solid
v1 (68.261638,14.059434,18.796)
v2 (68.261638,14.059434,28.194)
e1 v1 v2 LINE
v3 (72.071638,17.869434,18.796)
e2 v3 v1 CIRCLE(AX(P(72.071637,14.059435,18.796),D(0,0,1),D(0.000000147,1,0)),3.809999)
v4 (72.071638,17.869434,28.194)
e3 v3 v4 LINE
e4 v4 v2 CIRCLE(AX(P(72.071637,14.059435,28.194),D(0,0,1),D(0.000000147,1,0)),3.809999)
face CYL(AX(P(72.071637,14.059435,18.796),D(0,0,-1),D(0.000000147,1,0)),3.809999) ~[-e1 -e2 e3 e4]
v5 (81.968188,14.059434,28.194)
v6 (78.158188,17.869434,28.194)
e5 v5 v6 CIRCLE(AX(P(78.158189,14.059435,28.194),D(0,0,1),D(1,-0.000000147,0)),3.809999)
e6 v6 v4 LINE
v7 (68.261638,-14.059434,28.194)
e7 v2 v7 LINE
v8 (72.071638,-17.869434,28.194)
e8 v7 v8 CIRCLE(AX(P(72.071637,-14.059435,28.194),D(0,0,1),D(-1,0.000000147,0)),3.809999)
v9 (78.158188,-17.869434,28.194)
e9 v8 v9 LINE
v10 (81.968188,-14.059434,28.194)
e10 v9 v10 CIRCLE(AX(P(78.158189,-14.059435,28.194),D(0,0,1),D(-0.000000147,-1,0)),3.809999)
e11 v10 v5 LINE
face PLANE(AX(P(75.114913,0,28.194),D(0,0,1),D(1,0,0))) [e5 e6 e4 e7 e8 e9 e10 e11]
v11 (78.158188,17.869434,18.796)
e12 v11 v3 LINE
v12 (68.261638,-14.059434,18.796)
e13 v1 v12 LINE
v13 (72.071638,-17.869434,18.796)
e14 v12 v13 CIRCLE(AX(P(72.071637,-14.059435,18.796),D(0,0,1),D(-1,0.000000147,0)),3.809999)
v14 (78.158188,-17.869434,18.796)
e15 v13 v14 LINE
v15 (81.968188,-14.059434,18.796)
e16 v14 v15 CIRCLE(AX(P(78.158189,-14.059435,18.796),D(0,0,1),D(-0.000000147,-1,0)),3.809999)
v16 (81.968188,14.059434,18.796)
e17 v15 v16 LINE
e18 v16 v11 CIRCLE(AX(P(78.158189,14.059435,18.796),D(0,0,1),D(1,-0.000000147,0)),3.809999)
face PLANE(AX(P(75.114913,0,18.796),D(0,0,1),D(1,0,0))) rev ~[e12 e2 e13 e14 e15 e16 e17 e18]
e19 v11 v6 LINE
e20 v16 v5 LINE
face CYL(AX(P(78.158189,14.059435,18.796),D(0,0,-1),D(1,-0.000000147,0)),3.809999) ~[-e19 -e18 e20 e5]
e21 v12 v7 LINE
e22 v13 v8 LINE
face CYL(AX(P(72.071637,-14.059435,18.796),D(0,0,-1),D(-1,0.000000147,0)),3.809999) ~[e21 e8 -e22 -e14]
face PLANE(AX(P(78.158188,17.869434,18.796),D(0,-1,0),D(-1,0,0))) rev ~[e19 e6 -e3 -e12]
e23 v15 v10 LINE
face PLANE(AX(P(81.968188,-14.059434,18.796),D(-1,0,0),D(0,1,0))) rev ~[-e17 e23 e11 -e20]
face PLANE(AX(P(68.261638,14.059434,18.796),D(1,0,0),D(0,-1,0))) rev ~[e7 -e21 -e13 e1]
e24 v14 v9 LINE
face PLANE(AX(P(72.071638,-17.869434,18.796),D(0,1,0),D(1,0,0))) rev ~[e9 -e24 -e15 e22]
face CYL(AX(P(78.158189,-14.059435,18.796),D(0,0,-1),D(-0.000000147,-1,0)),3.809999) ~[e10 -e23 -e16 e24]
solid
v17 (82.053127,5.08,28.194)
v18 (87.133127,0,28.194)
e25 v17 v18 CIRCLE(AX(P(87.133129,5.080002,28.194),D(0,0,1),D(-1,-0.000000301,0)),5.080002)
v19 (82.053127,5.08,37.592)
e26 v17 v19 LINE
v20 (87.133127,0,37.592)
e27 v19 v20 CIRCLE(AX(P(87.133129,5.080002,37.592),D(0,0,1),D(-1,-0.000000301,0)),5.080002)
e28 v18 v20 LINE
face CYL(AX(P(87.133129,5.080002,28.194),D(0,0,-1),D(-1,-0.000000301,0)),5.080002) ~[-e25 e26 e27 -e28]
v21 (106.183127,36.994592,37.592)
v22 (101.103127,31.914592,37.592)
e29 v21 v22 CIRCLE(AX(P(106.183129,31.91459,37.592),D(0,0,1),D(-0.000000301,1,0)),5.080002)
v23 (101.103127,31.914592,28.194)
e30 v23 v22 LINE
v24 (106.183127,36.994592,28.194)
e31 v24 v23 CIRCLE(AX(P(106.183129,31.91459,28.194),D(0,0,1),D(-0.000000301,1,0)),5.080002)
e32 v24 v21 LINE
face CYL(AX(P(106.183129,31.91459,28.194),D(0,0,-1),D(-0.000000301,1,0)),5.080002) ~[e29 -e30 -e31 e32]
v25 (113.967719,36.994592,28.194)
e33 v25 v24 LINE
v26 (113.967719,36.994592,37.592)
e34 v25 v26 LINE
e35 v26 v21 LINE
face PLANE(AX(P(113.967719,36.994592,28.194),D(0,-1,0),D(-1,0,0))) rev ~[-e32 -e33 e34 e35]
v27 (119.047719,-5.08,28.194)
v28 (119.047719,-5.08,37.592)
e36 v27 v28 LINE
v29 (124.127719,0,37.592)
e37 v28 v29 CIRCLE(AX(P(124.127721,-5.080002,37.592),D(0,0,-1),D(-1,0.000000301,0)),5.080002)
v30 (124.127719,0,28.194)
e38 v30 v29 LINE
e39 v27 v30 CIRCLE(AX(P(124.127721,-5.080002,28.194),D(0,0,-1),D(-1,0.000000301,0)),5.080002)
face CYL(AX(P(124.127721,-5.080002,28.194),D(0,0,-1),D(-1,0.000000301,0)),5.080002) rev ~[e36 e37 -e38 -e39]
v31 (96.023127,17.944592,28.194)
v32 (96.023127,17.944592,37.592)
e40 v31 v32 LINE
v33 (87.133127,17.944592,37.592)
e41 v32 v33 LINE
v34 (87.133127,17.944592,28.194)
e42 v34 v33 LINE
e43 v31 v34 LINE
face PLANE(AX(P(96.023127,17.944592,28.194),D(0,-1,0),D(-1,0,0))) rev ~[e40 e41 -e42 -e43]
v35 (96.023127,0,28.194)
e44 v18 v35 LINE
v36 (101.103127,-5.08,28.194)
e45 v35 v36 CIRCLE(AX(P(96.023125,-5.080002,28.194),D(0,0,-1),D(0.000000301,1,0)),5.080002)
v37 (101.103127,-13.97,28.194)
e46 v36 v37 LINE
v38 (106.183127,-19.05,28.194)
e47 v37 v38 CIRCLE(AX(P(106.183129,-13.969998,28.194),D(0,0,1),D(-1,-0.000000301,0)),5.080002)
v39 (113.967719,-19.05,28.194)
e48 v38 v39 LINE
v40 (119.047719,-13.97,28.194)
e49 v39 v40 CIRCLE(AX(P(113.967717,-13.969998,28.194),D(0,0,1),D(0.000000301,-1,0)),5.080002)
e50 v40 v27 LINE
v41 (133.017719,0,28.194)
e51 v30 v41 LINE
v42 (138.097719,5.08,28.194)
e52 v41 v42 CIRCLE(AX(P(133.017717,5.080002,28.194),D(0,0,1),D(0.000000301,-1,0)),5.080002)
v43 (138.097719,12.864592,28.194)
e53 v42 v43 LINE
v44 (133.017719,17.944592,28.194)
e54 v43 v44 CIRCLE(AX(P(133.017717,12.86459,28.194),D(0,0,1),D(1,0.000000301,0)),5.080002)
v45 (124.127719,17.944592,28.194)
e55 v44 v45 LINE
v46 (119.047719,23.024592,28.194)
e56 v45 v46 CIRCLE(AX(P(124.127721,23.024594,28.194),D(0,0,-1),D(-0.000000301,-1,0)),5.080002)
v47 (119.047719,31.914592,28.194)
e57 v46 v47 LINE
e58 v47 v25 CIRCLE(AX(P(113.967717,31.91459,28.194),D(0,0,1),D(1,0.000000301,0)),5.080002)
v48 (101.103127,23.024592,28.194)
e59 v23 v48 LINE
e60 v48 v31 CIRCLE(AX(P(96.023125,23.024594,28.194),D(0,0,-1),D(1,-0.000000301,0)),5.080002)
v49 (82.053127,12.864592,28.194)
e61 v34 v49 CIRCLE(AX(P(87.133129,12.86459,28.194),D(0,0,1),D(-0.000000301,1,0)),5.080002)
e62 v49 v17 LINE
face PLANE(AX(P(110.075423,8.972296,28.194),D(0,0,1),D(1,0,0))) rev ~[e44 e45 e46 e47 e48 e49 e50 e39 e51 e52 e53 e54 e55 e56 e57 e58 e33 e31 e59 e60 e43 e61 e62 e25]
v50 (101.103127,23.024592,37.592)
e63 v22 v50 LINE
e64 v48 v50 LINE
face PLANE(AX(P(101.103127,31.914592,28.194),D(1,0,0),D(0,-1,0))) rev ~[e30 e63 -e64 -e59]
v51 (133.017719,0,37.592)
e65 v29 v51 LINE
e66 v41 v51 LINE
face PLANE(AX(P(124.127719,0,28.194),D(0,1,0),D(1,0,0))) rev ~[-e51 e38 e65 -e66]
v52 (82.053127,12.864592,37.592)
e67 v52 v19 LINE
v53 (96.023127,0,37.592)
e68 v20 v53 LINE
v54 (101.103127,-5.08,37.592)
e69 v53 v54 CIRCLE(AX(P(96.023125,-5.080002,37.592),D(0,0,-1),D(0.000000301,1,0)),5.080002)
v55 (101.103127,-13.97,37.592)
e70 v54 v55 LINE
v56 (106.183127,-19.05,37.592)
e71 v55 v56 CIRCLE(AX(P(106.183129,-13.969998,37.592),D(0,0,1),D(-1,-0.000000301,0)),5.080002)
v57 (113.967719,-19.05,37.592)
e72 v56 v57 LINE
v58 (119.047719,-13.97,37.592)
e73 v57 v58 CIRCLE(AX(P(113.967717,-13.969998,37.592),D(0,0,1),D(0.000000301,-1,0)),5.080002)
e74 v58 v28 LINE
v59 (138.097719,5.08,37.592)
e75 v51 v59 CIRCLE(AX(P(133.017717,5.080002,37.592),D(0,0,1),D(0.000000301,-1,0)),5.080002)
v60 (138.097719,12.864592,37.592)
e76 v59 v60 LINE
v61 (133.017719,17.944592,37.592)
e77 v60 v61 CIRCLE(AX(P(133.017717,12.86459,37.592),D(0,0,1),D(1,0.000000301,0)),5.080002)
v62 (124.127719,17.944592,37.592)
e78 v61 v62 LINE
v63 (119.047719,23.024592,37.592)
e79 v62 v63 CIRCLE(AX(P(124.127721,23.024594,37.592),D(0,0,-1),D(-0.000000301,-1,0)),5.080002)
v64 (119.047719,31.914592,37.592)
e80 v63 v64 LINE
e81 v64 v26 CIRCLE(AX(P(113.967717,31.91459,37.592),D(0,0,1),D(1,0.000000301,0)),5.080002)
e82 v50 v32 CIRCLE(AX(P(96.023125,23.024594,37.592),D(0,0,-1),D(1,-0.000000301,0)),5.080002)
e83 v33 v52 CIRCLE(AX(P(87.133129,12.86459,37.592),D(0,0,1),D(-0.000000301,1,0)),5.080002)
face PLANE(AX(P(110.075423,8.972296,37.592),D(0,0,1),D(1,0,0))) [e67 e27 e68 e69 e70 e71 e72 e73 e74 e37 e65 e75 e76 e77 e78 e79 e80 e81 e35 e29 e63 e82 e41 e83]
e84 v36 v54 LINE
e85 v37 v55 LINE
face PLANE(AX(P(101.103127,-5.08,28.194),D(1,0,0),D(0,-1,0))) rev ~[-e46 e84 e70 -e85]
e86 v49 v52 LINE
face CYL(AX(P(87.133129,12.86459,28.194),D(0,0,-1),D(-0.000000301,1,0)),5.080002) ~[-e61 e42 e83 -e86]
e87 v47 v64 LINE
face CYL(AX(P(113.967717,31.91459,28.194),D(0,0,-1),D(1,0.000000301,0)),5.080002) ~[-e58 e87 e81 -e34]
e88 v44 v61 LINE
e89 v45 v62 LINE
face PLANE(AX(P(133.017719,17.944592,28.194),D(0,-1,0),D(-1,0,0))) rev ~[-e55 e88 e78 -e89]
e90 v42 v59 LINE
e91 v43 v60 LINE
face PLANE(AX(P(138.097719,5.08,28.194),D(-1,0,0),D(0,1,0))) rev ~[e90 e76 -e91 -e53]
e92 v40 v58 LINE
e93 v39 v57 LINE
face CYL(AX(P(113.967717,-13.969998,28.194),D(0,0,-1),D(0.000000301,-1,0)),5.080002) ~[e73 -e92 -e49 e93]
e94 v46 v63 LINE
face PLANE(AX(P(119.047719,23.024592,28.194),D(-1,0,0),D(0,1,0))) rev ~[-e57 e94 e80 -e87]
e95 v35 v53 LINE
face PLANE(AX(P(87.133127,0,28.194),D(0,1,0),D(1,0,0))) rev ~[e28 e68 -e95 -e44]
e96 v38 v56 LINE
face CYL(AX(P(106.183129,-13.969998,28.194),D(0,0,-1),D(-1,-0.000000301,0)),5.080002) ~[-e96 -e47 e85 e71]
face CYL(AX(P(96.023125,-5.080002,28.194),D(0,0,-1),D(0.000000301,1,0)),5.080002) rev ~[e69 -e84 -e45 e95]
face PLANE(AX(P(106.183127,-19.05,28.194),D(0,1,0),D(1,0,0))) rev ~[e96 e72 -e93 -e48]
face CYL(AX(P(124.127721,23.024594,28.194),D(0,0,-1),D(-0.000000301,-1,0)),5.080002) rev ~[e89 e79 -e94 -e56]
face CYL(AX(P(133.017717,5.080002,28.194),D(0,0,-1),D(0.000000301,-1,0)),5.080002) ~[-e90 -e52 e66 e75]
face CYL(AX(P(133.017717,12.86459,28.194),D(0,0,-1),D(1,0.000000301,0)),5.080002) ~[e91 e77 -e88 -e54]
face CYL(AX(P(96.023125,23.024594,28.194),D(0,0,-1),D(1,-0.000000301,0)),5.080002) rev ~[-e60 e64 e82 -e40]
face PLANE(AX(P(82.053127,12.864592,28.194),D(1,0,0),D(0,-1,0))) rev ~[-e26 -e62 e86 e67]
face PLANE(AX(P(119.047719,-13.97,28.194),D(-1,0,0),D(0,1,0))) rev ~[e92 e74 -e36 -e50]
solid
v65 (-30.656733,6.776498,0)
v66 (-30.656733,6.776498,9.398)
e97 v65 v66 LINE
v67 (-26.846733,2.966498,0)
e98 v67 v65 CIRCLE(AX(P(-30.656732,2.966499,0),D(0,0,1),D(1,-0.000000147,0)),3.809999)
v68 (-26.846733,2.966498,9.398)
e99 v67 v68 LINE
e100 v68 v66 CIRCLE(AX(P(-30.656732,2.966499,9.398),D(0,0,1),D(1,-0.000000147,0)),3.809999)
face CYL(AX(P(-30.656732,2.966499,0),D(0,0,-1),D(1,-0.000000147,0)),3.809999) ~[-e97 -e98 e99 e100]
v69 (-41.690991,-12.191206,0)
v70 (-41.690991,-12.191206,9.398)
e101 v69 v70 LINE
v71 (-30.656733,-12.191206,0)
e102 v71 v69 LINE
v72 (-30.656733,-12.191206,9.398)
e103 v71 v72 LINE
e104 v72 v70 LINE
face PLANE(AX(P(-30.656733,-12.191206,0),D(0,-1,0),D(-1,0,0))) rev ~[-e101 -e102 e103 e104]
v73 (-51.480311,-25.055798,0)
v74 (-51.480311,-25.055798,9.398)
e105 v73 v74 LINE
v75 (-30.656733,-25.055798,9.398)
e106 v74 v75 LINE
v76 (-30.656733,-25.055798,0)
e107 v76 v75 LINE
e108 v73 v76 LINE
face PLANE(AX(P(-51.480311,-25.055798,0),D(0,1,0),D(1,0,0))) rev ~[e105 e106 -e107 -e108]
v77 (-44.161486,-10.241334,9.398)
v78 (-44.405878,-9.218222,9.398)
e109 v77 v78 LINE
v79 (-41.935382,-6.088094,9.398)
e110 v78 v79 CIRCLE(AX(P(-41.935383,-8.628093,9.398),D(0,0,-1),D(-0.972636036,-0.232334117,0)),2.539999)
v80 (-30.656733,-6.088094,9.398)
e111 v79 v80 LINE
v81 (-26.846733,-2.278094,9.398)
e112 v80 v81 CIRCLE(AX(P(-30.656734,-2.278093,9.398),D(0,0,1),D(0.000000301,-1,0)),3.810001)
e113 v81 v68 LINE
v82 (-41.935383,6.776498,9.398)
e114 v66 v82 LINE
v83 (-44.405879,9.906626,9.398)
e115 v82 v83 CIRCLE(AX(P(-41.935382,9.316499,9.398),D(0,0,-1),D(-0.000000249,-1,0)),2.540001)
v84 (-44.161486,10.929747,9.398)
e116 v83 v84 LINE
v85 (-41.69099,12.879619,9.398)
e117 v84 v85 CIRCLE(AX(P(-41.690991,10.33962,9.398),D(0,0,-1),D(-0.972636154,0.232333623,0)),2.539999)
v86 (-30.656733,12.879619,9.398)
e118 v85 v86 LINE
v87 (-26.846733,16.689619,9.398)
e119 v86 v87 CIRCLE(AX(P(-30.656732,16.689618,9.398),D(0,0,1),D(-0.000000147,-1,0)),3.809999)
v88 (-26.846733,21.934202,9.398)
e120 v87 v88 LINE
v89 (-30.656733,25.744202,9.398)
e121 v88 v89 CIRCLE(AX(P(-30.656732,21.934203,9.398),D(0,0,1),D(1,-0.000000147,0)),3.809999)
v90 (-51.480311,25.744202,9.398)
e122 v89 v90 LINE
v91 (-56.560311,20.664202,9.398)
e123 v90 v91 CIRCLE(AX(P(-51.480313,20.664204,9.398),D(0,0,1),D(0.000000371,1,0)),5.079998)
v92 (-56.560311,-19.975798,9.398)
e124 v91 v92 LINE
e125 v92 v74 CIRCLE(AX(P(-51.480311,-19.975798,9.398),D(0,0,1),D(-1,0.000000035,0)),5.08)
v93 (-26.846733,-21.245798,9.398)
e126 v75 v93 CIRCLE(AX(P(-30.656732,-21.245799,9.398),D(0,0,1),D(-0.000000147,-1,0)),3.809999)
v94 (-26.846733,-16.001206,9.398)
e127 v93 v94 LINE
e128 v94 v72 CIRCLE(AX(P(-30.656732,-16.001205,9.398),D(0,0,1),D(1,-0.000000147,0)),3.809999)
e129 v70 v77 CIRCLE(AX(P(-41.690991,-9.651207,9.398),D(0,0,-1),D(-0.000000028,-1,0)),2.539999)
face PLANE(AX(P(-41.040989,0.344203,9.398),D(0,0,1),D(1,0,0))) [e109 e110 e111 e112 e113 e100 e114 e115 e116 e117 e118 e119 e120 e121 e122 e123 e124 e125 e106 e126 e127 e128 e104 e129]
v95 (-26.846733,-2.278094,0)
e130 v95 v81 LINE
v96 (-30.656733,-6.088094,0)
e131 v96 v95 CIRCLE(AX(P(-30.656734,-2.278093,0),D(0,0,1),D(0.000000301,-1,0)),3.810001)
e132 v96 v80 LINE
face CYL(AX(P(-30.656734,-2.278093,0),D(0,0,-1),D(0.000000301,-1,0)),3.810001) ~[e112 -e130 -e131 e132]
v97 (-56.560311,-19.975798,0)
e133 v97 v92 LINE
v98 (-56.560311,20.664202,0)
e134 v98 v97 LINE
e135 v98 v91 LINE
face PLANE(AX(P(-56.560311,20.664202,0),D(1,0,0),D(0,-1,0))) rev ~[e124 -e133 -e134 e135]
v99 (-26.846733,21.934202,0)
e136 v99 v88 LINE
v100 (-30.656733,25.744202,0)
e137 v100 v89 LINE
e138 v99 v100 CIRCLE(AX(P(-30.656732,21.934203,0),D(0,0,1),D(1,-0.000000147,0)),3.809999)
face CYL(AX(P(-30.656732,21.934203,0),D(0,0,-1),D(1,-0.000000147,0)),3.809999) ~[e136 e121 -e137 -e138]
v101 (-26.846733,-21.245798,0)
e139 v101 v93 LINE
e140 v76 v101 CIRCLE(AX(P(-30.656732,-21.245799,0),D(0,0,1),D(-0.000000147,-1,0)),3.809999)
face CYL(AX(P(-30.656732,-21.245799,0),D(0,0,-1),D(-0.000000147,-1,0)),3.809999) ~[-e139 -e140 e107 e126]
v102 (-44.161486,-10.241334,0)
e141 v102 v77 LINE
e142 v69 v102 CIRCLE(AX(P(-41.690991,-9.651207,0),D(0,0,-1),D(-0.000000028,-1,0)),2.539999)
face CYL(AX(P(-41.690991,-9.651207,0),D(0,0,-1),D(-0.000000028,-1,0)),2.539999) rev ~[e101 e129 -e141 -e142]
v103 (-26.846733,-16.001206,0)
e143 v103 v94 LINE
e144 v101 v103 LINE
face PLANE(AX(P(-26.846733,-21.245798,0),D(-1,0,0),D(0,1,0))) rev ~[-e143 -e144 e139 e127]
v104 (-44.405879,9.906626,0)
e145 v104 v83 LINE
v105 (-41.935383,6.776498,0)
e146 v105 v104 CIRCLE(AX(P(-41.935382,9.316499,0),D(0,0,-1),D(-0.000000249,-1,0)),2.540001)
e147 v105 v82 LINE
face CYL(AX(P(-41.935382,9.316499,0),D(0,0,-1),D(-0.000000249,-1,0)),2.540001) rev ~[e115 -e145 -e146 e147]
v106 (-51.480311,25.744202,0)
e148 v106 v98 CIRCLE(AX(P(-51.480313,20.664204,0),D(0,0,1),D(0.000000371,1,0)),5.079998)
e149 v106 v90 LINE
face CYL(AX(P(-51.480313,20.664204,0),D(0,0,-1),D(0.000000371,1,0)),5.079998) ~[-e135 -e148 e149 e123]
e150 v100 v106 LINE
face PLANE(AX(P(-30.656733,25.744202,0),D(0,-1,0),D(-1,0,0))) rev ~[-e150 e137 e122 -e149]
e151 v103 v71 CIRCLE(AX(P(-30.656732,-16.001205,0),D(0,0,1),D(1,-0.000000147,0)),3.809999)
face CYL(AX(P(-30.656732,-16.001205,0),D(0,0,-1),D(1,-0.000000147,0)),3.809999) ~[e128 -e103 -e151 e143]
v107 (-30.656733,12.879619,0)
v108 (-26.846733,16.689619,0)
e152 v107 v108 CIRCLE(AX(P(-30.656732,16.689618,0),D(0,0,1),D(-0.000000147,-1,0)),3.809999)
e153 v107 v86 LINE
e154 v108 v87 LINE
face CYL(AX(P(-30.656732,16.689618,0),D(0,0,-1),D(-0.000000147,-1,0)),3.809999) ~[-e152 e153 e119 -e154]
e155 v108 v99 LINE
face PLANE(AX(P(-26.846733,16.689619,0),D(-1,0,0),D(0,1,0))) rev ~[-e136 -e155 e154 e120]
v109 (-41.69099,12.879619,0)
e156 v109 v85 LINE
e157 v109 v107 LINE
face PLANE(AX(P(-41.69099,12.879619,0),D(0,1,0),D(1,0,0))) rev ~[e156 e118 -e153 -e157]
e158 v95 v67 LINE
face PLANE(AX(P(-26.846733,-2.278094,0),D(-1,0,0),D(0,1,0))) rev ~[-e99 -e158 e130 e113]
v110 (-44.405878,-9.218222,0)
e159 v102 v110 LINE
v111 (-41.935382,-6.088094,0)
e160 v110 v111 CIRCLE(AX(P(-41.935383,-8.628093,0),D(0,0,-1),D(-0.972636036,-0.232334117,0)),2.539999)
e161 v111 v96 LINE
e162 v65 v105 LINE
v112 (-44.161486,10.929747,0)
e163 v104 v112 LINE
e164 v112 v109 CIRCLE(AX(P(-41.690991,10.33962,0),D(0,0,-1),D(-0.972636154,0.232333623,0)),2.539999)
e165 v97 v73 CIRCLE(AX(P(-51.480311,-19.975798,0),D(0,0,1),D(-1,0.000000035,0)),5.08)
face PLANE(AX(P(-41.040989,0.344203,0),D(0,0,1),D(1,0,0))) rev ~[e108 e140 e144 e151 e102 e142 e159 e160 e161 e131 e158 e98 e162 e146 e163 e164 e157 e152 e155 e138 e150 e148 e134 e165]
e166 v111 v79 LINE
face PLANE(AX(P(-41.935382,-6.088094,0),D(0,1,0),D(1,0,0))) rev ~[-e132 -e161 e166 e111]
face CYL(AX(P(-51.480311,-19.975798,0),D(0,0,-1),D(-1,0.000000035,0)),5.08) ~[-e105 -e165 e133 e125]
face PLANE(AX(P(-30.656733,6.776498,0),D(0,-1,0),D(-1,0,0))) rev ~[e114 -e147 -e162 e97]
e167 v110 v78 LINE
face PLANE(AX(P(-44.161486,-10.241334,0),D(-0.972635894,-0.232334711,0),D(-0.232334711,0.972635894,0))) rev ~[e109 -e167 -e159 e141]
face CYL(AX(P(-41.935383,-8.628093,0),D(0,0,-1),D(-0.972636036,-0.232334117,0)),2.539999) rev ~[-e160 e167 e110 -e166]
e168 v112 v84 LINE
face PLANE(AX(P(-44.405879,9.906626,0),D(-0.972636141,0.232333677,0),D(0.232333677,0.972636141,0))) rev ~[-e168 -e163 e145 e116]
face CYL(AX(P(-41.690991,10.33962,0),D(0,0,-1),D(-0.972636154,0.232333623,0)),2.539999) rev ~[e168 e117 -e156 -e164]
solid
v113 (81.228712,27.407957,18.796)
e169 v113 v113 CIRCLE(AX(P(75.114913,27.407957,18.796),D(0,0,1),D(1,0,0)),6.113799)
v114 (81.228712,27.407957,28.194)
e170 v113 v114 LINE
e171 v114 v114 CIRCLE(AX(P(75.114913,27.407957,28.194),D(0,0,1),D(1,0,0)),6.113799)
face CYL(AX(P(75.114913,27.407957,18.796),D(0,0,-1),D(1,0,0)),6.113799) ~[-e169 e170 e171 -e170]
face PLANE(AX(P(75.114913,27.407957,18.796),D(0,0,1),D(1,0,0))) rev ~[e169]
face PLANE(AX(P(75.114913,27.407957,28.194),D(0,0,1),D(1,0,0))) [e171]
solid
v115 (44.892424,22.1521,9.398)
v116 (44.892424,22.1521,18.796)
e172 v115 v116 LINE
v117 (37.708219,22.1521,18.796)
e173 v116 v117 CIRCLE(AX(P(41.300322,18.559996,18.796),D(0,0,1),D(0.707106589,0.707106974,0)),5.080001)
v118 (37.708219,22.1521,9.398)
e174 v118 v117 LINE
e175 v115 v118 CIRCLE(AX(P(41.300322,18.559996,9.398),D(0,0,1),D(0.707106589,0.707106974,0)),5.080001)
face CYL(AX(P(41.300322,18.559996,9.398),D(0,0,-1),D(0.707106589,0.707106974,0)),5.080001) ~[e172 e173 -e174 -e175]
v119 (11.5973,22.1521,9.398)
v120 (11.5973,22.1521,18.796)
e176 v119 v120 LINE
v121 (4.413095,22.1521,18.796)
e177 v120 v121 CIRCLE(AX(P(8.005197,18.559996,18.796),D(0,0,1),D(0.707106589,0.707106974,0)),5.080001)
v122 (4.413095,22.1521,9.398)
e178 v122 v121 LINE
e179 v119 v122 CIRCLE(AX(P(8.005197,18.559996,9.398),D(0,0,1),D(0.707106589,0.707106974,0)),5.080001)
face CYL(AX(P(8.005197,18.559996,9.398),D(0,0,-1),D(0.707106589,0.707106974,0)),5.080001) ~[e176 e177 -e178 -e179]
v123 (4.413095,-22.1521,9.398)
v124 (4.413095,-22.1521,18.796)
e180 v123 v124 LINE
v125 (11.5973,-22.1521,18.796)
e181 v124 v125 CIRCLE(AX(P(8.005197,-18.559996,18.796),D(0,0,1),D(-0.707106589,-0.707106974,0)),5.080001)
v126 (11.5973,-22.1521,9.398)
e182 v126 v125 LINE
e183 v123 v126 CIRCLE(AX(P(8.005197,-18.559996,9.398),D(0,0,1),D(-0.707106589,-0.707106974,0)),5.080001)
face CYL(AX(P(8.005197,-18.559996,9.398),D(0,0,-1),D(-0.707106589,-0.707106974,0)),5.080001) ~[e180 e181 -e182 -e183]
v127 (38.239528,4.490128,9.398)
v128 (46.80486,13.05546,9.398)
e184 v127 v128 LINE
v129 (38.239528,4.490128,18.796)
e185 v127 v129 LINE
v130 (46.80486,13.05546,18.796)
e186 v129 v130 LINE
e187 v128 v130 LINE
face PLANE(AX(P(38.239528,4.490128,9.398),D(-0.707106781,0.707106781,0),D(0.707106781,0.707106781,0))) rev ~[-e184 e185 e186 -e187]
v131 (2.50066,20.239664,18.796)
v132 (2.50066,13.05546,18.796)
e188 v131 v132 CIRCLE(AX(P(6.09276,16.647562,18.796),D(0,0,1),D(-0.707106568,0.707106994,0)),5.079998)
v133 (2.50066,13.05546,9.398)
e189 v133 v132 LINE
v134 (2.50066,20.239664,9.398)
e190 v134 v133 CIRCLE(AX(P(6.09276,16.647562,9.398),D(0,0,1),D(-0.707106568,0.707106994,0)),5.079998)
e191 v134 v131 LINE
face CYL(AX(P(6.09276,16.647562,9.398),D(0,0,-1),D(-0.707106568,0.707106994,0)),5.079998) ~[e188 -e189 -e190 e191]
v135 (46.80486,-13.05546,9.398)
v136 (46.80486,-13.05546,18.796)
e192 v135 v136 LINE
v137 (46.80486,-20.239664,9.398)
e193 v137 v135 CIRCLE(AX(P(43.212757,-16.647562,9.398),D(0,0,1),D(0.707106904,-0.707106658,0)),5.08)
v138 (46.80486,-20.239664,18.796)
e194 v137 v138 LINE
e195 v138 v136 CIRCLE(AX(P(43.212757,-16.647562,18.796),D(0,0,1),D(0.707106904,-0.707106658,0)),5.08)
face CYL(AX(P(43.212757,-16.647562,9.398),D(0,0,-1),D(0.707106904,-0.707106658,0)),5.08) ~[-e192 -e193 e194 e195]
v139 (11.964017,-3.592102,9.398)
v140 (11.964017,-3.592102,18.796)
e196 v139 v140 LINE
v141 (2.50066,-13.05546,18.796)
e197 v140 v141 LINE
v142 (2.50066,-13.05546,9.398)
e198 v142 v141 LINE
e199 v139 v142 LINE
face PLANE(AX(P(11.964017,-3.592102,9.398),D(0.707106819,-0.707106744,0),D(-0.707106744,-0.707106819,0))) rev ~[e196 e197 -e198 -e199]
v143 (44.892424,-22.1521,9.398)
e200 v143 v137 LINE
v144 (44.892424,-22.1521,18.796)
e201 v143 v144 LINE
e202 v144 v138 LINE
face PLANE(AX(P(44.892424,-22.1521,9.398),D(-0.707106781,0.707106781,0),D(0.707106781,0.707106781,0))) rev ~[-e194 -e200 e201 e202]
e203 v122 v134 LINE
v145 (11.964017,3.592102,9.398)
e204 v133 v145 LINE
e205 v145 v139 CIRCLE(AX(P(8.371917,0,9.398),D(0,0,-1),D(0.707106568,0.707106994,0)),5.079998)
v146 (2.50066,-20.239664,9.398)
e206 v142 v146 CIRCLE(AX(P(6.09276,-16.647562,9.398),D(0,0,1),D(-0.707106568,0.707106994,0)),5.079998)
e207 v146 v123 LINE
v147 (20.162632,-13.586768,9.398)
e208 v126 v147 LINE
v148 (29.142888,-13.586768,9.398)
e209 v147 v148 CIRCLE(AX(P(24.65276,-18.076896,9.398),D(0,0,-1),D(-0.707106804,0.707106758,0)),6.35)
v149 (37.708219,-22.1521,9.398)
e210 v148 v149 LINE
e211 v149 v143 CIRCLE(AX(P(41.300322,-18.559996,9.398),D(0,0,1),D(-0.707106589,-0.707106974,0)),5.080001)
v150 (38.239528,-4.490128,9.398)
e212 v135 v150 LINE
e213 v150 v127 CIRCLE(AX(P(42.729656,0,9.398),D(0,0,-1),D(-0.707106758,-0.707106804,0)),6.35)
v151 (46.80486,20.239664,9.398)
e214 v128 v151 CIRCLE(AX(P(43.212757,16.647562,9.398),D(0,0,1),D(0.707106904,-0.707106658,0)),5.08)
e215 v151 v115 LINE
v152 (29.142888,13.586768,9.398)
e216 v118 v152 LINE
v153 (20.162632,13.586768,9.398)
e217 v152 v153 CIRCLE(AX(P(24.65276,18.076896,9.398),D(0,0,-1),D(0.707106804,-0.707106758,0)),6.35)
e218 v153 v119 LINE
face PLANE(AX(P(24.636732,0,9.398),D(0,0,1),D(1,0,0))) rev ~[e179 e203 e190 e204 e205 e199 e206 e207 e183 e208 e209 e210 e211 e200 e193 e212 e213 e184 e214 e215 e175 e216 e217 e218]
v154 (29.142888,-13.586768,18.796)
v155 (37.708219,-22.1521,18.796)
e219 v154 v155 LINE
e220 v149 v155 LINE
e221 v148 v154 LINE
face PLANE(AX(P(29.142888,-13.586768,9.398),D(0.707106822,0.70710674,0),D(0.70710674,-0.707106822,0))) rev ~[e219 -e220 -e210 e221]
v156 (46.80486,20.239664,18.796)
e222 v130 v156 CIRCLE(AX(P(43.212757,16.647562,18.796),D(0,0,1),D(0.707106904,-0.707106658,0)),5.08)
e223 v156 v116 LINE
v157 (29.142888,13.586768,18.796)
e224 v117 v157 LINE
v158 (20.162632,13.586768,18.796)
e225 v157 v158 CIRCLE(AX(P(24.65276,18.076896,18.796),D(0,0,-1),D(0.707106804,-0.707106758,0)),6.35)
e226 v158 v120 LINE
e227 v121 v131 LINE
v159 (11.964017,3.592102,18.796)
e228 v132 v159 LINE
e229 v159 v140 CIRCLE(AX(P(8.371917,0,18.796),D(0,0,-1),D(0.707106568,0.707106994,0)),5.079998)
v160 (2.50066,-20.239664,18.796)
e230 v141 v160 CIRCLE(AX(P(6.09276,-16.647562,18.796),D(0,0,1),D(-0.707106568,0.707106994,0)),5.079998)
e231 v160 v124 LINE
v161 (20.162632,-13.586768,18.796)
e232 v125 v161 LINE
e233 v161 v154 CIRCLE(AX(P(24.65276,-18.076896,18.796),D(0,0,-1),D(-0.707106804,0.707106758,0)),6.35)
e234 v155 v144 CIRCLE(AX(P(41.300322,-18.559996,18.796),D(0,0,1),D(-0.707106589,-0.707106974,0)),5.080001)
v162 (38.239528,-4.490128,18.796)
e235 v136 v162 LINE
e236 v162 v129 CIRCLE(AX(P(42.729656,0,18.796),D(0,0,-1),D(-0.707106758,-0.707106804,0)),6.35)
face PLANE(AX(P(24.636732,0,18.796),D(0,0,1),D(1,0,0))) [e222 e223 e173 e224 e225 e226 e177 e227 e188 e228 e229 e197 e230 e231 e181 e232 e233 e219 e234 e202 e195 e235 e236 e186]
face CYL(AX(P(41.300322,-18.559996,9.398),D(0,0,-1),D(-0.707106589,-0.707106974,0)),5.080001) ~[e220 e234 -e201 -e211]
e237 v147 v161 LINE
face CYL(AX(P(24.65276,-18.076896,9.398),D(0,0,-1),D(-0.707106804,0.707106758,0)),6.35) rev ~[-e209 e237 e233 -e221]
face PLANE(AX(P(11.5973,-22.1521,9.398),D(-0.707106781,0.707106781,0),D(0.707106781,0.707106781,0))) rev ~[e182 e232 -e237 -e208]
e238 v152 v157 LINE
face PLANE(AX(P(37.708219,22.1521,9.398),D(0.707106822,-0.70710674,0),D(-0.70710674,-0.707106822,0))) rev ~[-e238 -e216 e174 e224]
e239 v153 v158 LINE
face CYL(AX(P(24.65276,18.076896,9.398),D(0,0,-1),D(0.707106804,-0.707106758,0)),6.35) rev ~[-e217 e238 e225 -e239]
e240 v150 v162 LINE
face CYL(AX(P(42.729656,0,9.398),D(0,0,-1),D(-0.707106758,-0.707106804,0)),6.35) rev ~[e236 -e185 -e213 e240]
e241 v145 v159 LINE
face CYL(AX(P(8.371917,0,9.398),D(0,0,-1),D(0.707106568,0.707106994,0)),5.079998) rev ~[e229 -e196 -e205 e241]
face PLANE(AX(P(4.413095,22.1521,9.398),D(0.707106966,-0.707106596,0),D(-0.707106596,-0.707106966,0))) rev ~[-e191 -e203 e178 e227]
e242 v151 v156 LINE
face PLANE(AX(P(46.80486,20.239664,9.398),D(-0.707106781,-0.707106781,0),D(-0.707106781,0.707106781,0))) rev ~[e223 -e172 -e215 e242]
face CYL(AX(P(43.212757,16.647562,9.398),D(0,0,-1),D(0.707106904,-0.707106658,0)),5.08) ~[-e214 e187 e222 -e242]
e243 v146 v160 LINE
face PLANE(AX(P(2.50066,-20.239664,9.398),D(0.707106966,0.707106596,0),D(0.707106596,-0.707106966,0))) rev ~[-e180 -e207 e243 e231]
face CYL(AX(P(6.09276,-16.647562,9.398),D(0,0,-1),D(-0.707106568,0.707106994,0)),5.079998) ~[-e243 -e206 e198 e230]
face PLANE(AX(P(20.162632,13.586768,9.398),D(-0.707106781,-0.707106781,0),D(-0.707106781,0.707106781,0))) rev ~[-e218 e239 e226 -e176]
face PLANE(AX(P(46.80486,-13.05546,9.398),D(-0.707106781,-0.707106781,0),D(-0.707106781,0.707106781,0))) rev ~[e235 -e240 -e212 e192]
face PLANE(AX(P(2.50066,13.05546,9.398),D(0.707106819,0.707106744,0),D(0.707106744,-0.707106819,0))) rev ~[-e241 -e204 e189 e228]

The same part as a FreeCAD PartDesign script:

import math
import FreeCAD as App
import Part
import Sketcher
from FreeCAD import Vector
Q = App.Units.Quantity

doc = App.newDocument("Part")
body = doc.addObject("PartDesign::Body", "Body")

sketch1 = doc.addObject("Sketcher::SketchObject", "Sketch")
body.addObject(sketch1)
sketch1.AttachmentSupport = (doc.XY_Plane, [""])
sketch1.MapMode = "FlatFace"
sketch1.addGeometry([
    Part.LineSegment(Vector(-56.560311, 20.664202, 0), Vector(-56.560311, -19.975798, 0)),
    Part.ArcOfCircle(Part.Circle(Vector(-51.480311, -19.975798, 0), Vector(0, 0, 1), 5.08), math.radians(179.999998), math.radians(270.000002)),
    Part.LineSegment(Vector(-51.480311, -25.055798, 0), Vector(-30.656733, -25.055798, 0)),
    Part.ArcOfCircle(Part.Circle(Vector(-30.656732, -21.245799, 0), Vector(0, 0, 1), 3.809999), math.radians(-90.000008), math.radians(0.000008)),
    Part.LineSegment(Vector(-26.846733, -21.245798, 0), Vector(-26.846733, -16.001206, 0)),
    Part.ArcOfCircle(Part.Circle(Vector(-30.656732, -16.001205, 0), Vector(0, 0, 1), 3.809999), math.radians(-0.000008), math.radians(90.000008)),
    Part.LineSegment(Vector(-30.656733, -12.191206, 0), Vector(-41.690991, -12.191206, 0)),
    Part.ArcOfCircle(Part.Circle(Vector(-41.690991, -9.651207, 0), Vector(0, 0, 1), 2.539999), math.radians(-166.565499), math.radians(-90.000002)),
    Part.LineSegment(Vector(-44.161486, -10.241334, 0), Vector(-44.405878, -9.218222, 0)),
    Part.ArcOfCircle(Part.Circle(Vector(-41.935383, -8.628093, 0), Vector(0, 0, 1), 2.539999), math.radians(89.999978), math.radians(193.43453)),
    Part.LineSegment(Vector(-41.935382, -6.088094, 0), Vector(-30.656733, -6.088094, 0)),
    Part.ArcOfCircle(Part.Circle(Vector(-30.656734, -2.278093, 0), Vector(0, 0, 1), 3.810001), math.radians(-89.999983), math.radians(-0.000017)),
    Part.LineSegment(Vector(-26.846733, -2.278094, 0), Vector(-26.846733, 2.966498, 0)),
    Part.ArcOfCircle(Part.Circle(Vector(-30.656732, 2.966499, 0), Vector(0, 0, 1), 3.809999), math.radians(-0.000008), math.radians(90.000008)),
    Part.LineSegment(Vector(-30.656733, 6.776498, 0), Vector(-41.935383, 6.776498, 0)),
    Part.ArcOfCircle(Part.Circle(Vector(-41.935382, 9.316499, 0), Vector(0, 0, 1), 2.540001), math.radians(166.565507), math.radians(269.999986)),
    Part.LineSegment(Vector(-44.405879, 9.906626, 0), Vector(-44.161486, 10.929747, 0)),
    Part.ArcOfCircle(Part.Circle(Vector(-41.690991, 10.33962, 0), Vector(0, 0, 1), 2.539999), math.radians(89.999979), math.radians(166.565499)),
    Part.LineSegment(Vector(-41.69099, 12.879619, 0), Vector(-30.656733, 12.879619, 0)),
    Part.ArcOfCircle(Part.Circle(Vector(-30.656732, 16.689618, 0), Vector(0, 0, 1), 3.809999), math.radians(-90.000008), math.radians(0.000008)),
    Part.LineSegment(Vector(-26.846733, 16.689619, 0), Vector(-26.846733, 21.934202, 0)),
    Part.ArcOfCircle(Part.Circle(Vector(-30.656732, 21.934203, 0), Vector(0, 0, 1), 3.809999), math.radians(-0.000008), math.radians(90.000008)),
    Part.LineSegment(Vector(-30.656733, 25.744202, 0), Vector(-51.480311, 25.744202, 0)),
    Part.ArcOfCircle(Part.Circle(Vector(-51.480313, 20.664204, 0), Vector(0, 0, 1), 5.079998), math.radians(89.999979), math.radians(180.000021)),
], False)
sketch1.addConstraint([
    Sketcher.Constraint("Tangent", 0, 2, 1, 1),
    Sketcher.Constraint("Tangent", 1, 2, 2, 1),
    Sketcher.Constraint("Tangent", 2, 2, 3, 1),
    Sketcher.Constraint("Tangent", 3, 2, 4, 1),
    Sketcher.Constraint("Tangent", 4, 2, 5, 1),
    Sketcher.Constraint("Tangent", 5, 2, 6, 1),
    Sketcher.Constraint("Tangent", 6, 2, 7, 2),
    Sketcher.Constraint("Tangent", 7, 1, 8, 1),
    Sketcher.Constraint("Tangent", 8, 2, 9, 2),
    Sketcher.Constraint("Tangent", 9, 1, 10, 1),
    Sketcher.Constraint("Tangent", 10, 2, 11, 1),
    Sketcher.Constraint("Tangent", 11, 2, 12, 1),
    Sketcher.Constraint("Tangent", 12, 2, 13, 1),
    Sketcher.Constraint("Tangent", 13, 2, 14, 1),
    Sketcher.Constraint("Tangent", 14, 2, 15, 2),
    Sketcher.Constraint("Tangent", 15, 1, 16, 1),
    Sketcher.Constraint("Tangent", 16, 2, 17, 2),
    Sketcher.Constraint("Tangent", 17, 1, 18, 1),
    Sketcher.Constraint("Tangent", 18, 2, 19, 1),
    Sketcher.Constraint("Tangent", 19, 2, 20, 1),
    Sketcher.Constraint("Tangent", 20, 2, 21, 1),
    Sketcher.Constraint("Tangent", 21, 2, 22, 1),
    Sketcher.Constraint("Tangent", 22, 2, 23, 1),
    Sketcher.Constraint("Tangent", 23, 2, 0, 1),
    Sketcher.Constraint("Vertical", 0),
    Sketcher.Constraint("Horizontal", 2),
    Sketcher.Constraint("Vertical", 4),
    Sketcher.Constraint("Horizontal", 6),
    Sketcher.Constraint("Horizontal", 10),
    Sketcher.Constraint("Vertical", 12),
    Sketcher.Constraint("Horizontal", 14),
    Sketcher.Constraint("Horizontal", 18),
    Sketcher.Constraint("Vertical", 20),
    Sketcher.Constraint("Horizontal", 22),
    Sketcher.Constraint("Equal", 3, 5),
    Sketcher.Constraint("Equal", 7, 9),
    Sketcher.Constraint("Equal", 5, 11),
    Sketcher.Constraint("Equal", 11, 13),
    Sketcher.Constraint("Equal", 9, 15),
    Sketcher.Constraint("Equal", 15, 17),
    Sketcher.Constraint("Equal", 13, 19),
    Sketcher.Constraint("Equal", 19, 21),
    Sketcher.Constraint("Equal", 1, 23),
    Sketcher.Constraint("Vertical", 5, 3, 11, 3),
    Sketcher.Constraint("Vertical", 9, 3, 15, 3),
    Sketcher.Constraint("Vertical", 7, 3, 17, 3),
    Sketcher.Constraint("Vertical", 13, 3, 19, 3),
    Sketcher.Constraint("Vertical", 8, 2, 15, 1),
    Sketcher.Constraint("Equal", 4, 12),
    Sketcher.Constraint("Radius", 1, Q("0.2 in")),
    Sketcher.Constraint("Radius", 7, Q("0.1 in")),
    Sketcher.Constraint("Radius", 3, Q("0.15 in")),
    Sketcher.Constraint("DistanceY", 0, 2, 0, 1, Q("1.6 in")),
    Sketcher.Constraint("DistanceX", 2, 1, 2, 2, Q("20.823578 mm")),
    Sketcher.Constraint("DistanceX", 10, 1, 10, 2, Q("11.278649 mm")),
    Sketcher.Constraint("DistanceY", 1, 3, -1, 1, Q("19.975798 mm")),
    Sketcher.Constraint("DistanceY", -1, 1, 13, 3, Q("2.966499 mm")),
    Sketcher.Constraint("DistanceX", 6, 2, 6, 1, Q("11.034258 mm")),
    Sketcher.Constraint("DistanceY", 4, 1, 4, 2, Q("5.244592 mm")),
    Sketcher.Constraint("DistanceX", 1, 3, -1, 1, Q("51.480311 mm")),
])
pad1 = doc.addObject("PartDesign::Pad", "Pad")
body.addObject(pad1)
pad1.Profile = sketch1
pad1.Length = Q("0.37 in")
body2 = doc.addObject("PartDesign::Body", "Body001")

sketch2 = doc.addObject("Sketcher::SketchObject", "Sketch001")
body2.addObject(sketch2)
sketch2.AttachmentSupport = (doc.getObject("XY_Plane001"), [""])
sketch2.MapMode = "FlatFace"
sketch2.AttachmentOffset = App.Placement(Vector(0, 0, 0.37 * 25.4), App.Rotation())
sketch2.addGeometry([
    Part.ArcOfCircle(Part.Circle(Vector(8.005197, 18.559996, 0), Vector(0, 0, 1), 5.080001), math.radians(45.000016), math.radians(134.999984)),
    Part.LineSegment(Vector(4.413095, 22.1521, 0), Vector(2.50066, 20.239664, 0)),
    Part.ArcOfCircle(Part.Circle(Vector(6.09276, 16.647562, 0), Vector(0, 0, 1), 5.079998), math.radians(134.999983), math.radians(225.000017)),
    Part.LineSegment(Vector(2.50066, 13.05546, 0), Vector(11.964017, 3.592102, 0)),
    Part.ArcOfCircle(Part.Circle(Vector(8.371917, 0, 0), Vector(0, 0, 1), 5.079998), math.radians(-45.000017), math.radians(45.000017)),
    Part.LineSegment(Vector(11.964017, -3.592102, 0), Vector(2.50066, -13.05546, 0)),
    Part.ArcOfCircle(Part.Circle(Vector(6.09276, -16.647562, 0), Vector(0, 0, 1), 5.079998), math.radians(134.999983), math.radians(225.000017)),
    Part.LineSegment(Vector(2.50066, -20.239664, 0), Vector(4.413095, -22.1521, 0)),
    Part.ArcOfCircle(Part.Circle(Vector(8.005197, -18.559996, 0), Vector(0, 0, 1), 5.080001), math.radians(-134.999984), math.radians(-45.000016)),
    Part.LineSegment(Vector(11.5973, -22.1521, 0), Vector(20.162632, -13.586768, 0)),
    Part.ArcOfCircle(Part.Circle(Vector(24.65276, -18.076896, 0), Vector(0, 0, 1), 6.35), math.radians(44.999998), math.radians(135.000002)),
    Part.LineSegment(Vector(29.142888, -13.586768, 0), Vector(37.708219, -22.1521, 0)),
    Part.ArcOfCircle(Part.Circle(Vector(41.300322, -18.559996, 0), Vector(0, 0, 1), 5.080001), math.radians(-134.999984), math.radians(-45.000016)),
    Part.LineSegment(Vector(44.892424, -22.1521, 0), Vector(46.80486, -20.239664, 0)),
    Part.ArcOfCircle(Part.Circle(Vector(43.212757, -16.647562, 0), Vector(0, 0, 1), 5.08), math.radians(-44.99999), math.radians(44.99999)),
    Part.LineSegment(Vector(46.80486, -13.05546, 0), Vector(38.239528, -4.490128, 0)),
    Part.ArcOfCircle(Part.Circle(Vector(42.729656, 0, 0), Vector(0, 0, 1), 6.35), math.radians(134.999998), math.radians(225.000002)),
    Part.LineSegment(Vector(38.239528, 4.490128, 0), Vector(46.80486, 13.05546, 0)),
    Part.ArcOfCircle(Part.Circle(Vector(43.212757, 16.647562, 0), Vector(0, 0, 1), 5.08), math.radians(-44.99999), math.radians(44.99999)),
    Part.LineSegment(Vector(46.80486, 20.239664, 0), Vector(44.892424, 22.1521, 0)),
    Part.ArcOfCircle(Part.Circle(Vector(41.300322, 18.559996, 0), Vector(0, 0, 1), 5.080001), math.radians(45.000016), math.radians(134.999984)),
    Part.LineSegment(Vector(37.708219, 22.1521, 0), Vector(29.142888, 13.586768, 0)),
    Part.ArcOfCircle(Part.Circle(Vector(24.65276, 18.076896, 0), Vector(0, 0, 1), 6.35), math.radians(-135.000002), math.radians(-44.999998)),
    Part.LineSegment(Vector(20.162632, 13.586768, 0), Vector(11.5973, 22.1521, 0)),
], False)
sketch2.addConstraint([
    Sketcher.Constraint("Tangent", 0, 2, 1, 1),
    Sketcher.Constraint("Tangent", 1, 2, 2, 1),
    Sketcher.Constraint("Tangent", 2, 2, 3, 1),
    Sketcher.Constraint("Tangent", 3, 2, 4, 2),
    Sketcher.Constraint("Tangent", 4, 1, 5, 1),
    Sketcher.Constraint("Tangent", 5, 2, 6, 1),
    Sketcher.Constraint("Tangent", 6, 2, 7, 1),
    Sketcher.Constraint("Tangent", 7, 2, 8, 1),
    Sketcher.Constraint("Tangent", 8, 2, 9, 1),
    Sketcher.Constraint("Tangent", 9, 2, 10, 2),
    Sketcher.Constraint("Tangent", 10, 1, 11, 1),
    Sketcher.Constraint("Tangent", 11, 2, 12, 1),
    Sketcher.Constraint("Tangent", 12, 2, 13, 1),
    Sketcher.Constraint("Tangent", 13, 2, 14, 1),
    Sketcher.Constraint("Tangent", 14, 2, 15, 1),
    Sketcher.Constraint("Tangent", 15, 2, 16, 2),
    Sketcher.Constraint("Tangent", 16, 1, 17, 1),
    Sketcher.Constraint("Tangent", 17, 2, 18, 1),
    Sketcher.Constraint("Tangent", 18, 2, 19, 1),
    Sketcher.Constraint("Tangent", 19, 2, 20, 1),
    Sketcher.Constraint("Tangent", 20, 2, 21, 1),
    Sketcher.Constraint("Tangent", 21, 2, 22, 2),
    Sketcher.Constraint("Tangent", 22, 1, 23, 1),
    Sketcher.Constraint("Tangent", 23, 2, 0, 1),
    Sketcher.Constraint("Equal", 2, 4),
    Sketcher.Constraint("Equal", 4, 6),
    Sketcher.Constraint("Equal", 0, 8),
    Sketcher.Constraint("Equal", 8, 12),
    Sketcher.Constraint("Equal", 12, 14),
    Sketcher.Constraint("Equal", 10, 16),
    Sketcher.Constraint("Equal", 14, 18),
    Sketcher.Constraint("Equal", 18, 20),
    Sketcher.Constraint("Equal", 16, 22),
    Sketcher.Constraint("Symmetric", 2, 3, 6, 3, -1),
    Sketcher.Constraint("Symmetric", 0, 3, 8, 3, -1),
    Sketcher.Constraint("Symmetric", 14, 3, 18, 3, -1),
    Sketcher.Constraint("Symmetric", 12, 3, 20, 3, -1),
    Sketcher.Constraint("Symmetric", 10, 3, 22, 3, -1),
    Sketcher.Constraint("PointOnObject", 4, 3, -1),
    Sketcher.Constraint("PointOnObject", 16, 3, -1),
    Sketcher.Constraint("Perpendicular", 1, 3),
    Sketcher.Constraint("Perpendicular", 3, 5),
    Sketcher.Constraint("Perpendicular", 7, 9),
    Sketcher.Constraint("Perpendicular", 9, 11),
    Sketcher.Constraint("Perpendicular", 11, 13),
    Sketcher.Constraint("Perpendicular", 13, 15),
    Sketcher.Constraint("Horizontal", 8, 3, 12, 3),
    Sketcher.Constraint("Horizontal", 6, 3, 14, 3),
    Sketcher.Constraint("Horizontal", 6, 2, 13, 2),
    Sketcher.Constraint("Equal", 11, 15),
    Sketcher.Constraint("Radius", 0, Q("0.2000001 in")),
    Sketcher.Constraint("Radius", 10, Q("0.25 in")),
    Sketcher.Constraint("DistanceY", -1, 1, 0, 2, Q("22.1521 mm")),
    Sketcher.Constraint("DistanceX", -1, 1, 8, 2, Q("11.5973 mm")),
    Sketcher.Constraint("DistanceY", 8, 3, 10, 3, Q("0.4831 mm")),
])
pad2 = doc.addObject("PartDesign::Pad", "Pad001")
body2.addObject(pad2)
pad2.Profile = sketch2
pad2.Length = Q("0.37 in")
body3 = doc.addObject("PartDesign::Body", "Body002")

sketch3 = doc.addObject("Sketcher::SketchObject", "Sketch002")
body3.addObject(sketch3)
sketch3.AttachmentSupport = (doc.getObject("XY_Plane002"), [""])
sketch3.MapMode = "FlatFace"
sketch3.AttachmentOffset = App.Placement(Vector(0, 0, 0.74 * 25.4), App.Rotation())
sketch3.addGeometry([
    Part.LineSegment(Vector(78.158188, 17.869434, 0), Vector(72.071638, 17.869434, 0)),
    Part.ArcOfCircle(Part.Circle(Vector(72.071637, 14.059435, 0), Vector(0, 0, 1), 3.809999), math.radians(89.999992), math.radians(180.000008)),
    Part.LineSegment(Vector(68.261638, 14.059434, 0), Vector(68.261638, -14.059434, 0)),
    Part.ArcOfCircle(Part.Circle(Vector(72.071637, -14.059435, 0), Vector(0, 0, 1), 3.809999), math.radians(179.999992), math.radians(270.000008)),
    Part.LineSegment(Vector(72.071638, -17.869434, 0), Vector(78.158188, -17.869434, 0)),
    Part.ArcOfCircle(Part.Circle(Vector(78.158189, -14.059435, 0), Vector(0, 0, 1), 3.809999), math.radians(-90.000008), math.radians(0.000008)),
    Part.LineSegment(Vector(81.968188, -14.059434, 0), Vector(81.968188, 14.059434, 0)),
    Part.ArcOfCircle(Part.Circle(Vector(78.158189, 14.059435, 0), Vector(0, 0, 1), 3.809999), math.radians(-0.000008), math.radians(90.000008)),
], False)
sketch3.addConstraint([
    Sketcher.Constraint("Tangent", 0, 2, 1, 1),
    Sketcher.Constraint("Tangent", 1, 2, 2, 1),
    Sketcher.Constraint("Tangent", 2, 2, 3, 1),
    Sketcher.Constraint("Tangent", 3, 2, 4, 1),
    Sketcher.Constraint("Tangent", 4, 2, 5, 1),
    Sketcher.Constraint("Tangent", 5, 2, 6, 1),
    Sketcher.Constraint("Tangent", 6, 2, 7, 1),
    Sketcher.Constraint("Tangent", 7, 2, 0, 1),
    Sketcher.Constraint("Horizontal", 0),
    Sketcher.Constraint("Vertical", 2),
    Sketcher.Constraint("Horizontal", 4),
    Sketcher.Constraint("Vertical", 6),
    Sketcher.Constraint("Equal", 1, 3),
    Sketcher.Constraint("Equal", 3, 5),
    Sketcher.Constraint("Equal", 5, 7),
    Sketcher.Constraint("Radius", 1, Q("0.15 in")),
    Sketcher.Constraint("DistanceX", 0, 2, 0, 1, Q("6.08655 mm")),
    Sketcher.Constraint("DistanceY", 2, 2, 2, 1, Q("28.118868 mm")),
    Sketcher.Constraint("DistanceX", -1, 1, 5, 3, Q("78.158189 mm")),
    Sketcher.Constraint("DistanceY", -1, 1, 1, 3, Q("14.059435 mm")),
])
pad3 = doc.addObject("PartDesign::Pad", "Pad002")
body3.addObject(pad3)
pad3.Profile = sketch3
pad3.Length = Q("0.37 in")
body4 = doc.addObject("PartDesign::Body", "Body003")

sketch4 = doc.addObject("Sketcher::SketchObject", "Sketch003")
body4.addObject(sketch4)
sketch4.AttachmentSupport = (doc.getObject("XY_Plane003"), [""])
sketch4.MapMode = "FlatFace"
sketch4.AttachmentOffset = App.Placement(Vector(0, 0, 0.74 * 25.4), App.Rotation())
sketch4.addGeometry(Part.Circle(Vector(75.114913, 27.407957, 0), Vector(0, 0, 1), 6.113799), False)
sketch4.addConstraint([
    Sketcher.Constraint("Diameter", 0, Q("12.227598 mm")),
    Sketcher.Constraint("DistanceX", -1, 1, 0, 3, Q("75.114913 mm")),
    Sketcher.Constraint("DistanceY", -1, 1, 0, 3, Q("27.407957 mm")),
])
pad4 = doc.addObject("PartDesign::Pad", "Pad003")
body4.addObject(pad4)
pad4.Profile = sketch4
pad4.Length = Q("0.37 in")
body5 = doc.addObject("PartDesign::Body", "Body004")

sketch5 = doc.addObject("Sketcher::SketchObject", "Sketch004")
body5.addObject(sketch5)
sketch5.AttachmentSupport = (doc.getObject("XY_Plane004"), [""])
sketch5.MapMode = "FlatFace"
sketch5.AttachmentOffset = App.Placement(Vector(0, 0, 1.11 * 25.4), App.Rotation())
sketch5.addGeometry([
    Part.ArcOfCircle(Part.Circle(Vector(106.183129, 31.91459, 0), Vector(0, 0, 1), 5.080002), math.radians(90.000017), math.radians(179.999983)),
    Part.LineSegment(Vector(101.103127, 31.914592, 0), Vector(101.103127, 23.024592, 0)),
    Part.ArcOfCircle(Part.Circle(Vector(96.023125, 23.024594, 0), Vector(0, 0, 1), 5.080002), math.radians(-89.999983), math.radians(-0.000017)),
    Part.LineSegment(Vector(96.023127, 17.944592, 0), Vector(87.133127, 17.944592, 0)),
    Part.ArcOfCircle(Part.Circle(Vector(87.133129, 12.86459, 0), Vector(0, 0, 1), 5.080002), math.radians(90.000017), math.radians(179.999983)),
    Part.LineSegment(Vector(82.053127, 12.864592, 0), Vector(82.053127, 5.08, 0)),
    Part.ArcOfCircle(Part.Circle(Vector(87.133129, 5.080002, 0), Vector(0, 0, 1), 5.080002), math.radians(-179.999983), math.radians(-90.000017)),
    Part.LineSegment(Vector(87.133127, 0, 0), Vector(96.023127, 0, 0)),
    Part.ArcOfCircle(Part.Circle(Vector(96.023125, -5.080002, 0), Vector(0, 0, 1), 5.080002), math.radians(0.000017), math.radians(89.999983)),
    Part.LineSegment(Vector(101.103127, -5.08, 0), Vector(101.103127, -13.97, 0)),
    Part.ArcOfCircle(Part.Circle(Vector(106.183129, -13.969998, 0), Vector(0, 0, 1), 5.080002), math.radians(-179.999983), math.radians(-90.000017)),
    Part.LineSegment(Vector(106.183127, -19.05, 0), Vector(113.967719, -19.05, 0)),
    Part.ArcOfCircle(Part.Circle(Vector(113.967717, -13.969998, 0), Vector(0, 0, 1), 5.080002), math.radians(-89.999983), math.radians(-0.000017)),
    Part.LineSegment(Vector(119.047719, -13.97, 0), Vector(119.047719, -5.08, 0)),
    Part.ArcOfCircle(Part.Circle(Vector(124.127721, -5.080002, 0), Vector(0, 0, 1), 5.080002), math.radians(90.000017), math.radians(179.999983)),
    Part.LineSegment(Vector(124.127719, 0, 0), Vector(133.017719, 0, 0)),
    Part.ArcOfCircle(Part.Circle(Vector(133.017717, 5.080002, 0), Vector(0, 0, 1), 5.080002), math.radians(-89.999983), math.radians(-0.000017)),
    Part.LineSegment(Vector(138.097719, 5.08, 0), Vector(138.097719, 12.864592, 0)),
    Part.ArcOfCircle(Part.Circle(Vector(133.017717, 12.86459, 0), Vector(0, 0, 1), 5.080002), math.radians(0.000017), math.radians(89.999983)),
    Part.LineSegment(Vector(133.017719, 17.944592, 0), Vector(124.127719, 17.944592, 0)),
    Part.ArcOfCircle(Part.Circle(Vector(124.127721, 23.024594, 0), Vector(0, 0, 1), 5.080002), math.radians(-179.999983), math.radians(-90.000017)),
    Part.LineSegment(Vector(119.047719, 23.024592, 0), Vector(119.047719, 31.914592, 0)),
    Part.ArcOfCircle(Part.Circle(Vector(113.967717, 31.91459, 0), Vector(0, 0, 1), 5.080002), math.radians(0.000017), math.radians(89.999983)),
    Part.LineSegment(Vector(113.967719, 36.994592, 0), Vector(106.183127, 36.994592, 0)),
], False)
sketch5.addConstraint([
    Sketcher.Constraint("Tangent", 0, 2, 1, 1),
    Sketcher.Constraint("Tangent", 1, 2, 2, 2),
    Sketcher.Constraint("Tangent", 2, 1, 3, 1),
    Sketcher.Constraint("Tangent", 3, 2, 4, 1),
    Sketcher.Constraint("Tangent", 4, 2, 5, 1),
    Sketcher.Constraint("Tangent", 5, 2, 6, 1),
    Sketcher.Constraint("Tangent", 6, 2, 7, 1),
    Sketcher.Constraint("Tangent", 7, 2, 8, 2),
    Sketcher.Constraint("Tangent", 8, 1, 9, 1),
    Sketcher.Constraint("Tangent", 9, 2, 10, 1),
    Sketcher.Constraint("Tangent", 10, 2, 11, 1),
    Sketcher.Constraint("Tangent", 11, 2, 12, 1),
    Sketcher.Constraint("Tangent", 12, 2, 13, 1),
    Sketcher.Constraint("Tangent", 13, 2, 14, 2),
    Sketcher.Constraint("Tangent", 14, 1, 15, 1),
    Sketcher.Constraint("Tangent", 15, 2, 16, 1),
    Sketcher.Constraint("Tangent", 16, 2, 17, 1),
    Sketcher.Constraint("Tangent", 17, 2, 18, 1),
    Sketcher.Constraint("Tangent", 18, 2, 19, 1),
    Sketcher.Constraint("Tangent", 19, 2, 20, 2),
    Sketcher.Constraint("Tangent", 20, 1, 21, 1),
    Sketcher.Constraint("Tangent", 21, 2, 22, 1),
    Sketcher.Constraint("Tangent", 22, 2, 23, 1),
    Sketcher.Constraint("Tangent", 23, 2, 0, 1),
    Sketcher.Constraint("Vertical", 1),
    Sketcher.Constraint("Horizontal", 3),
    Sketcher.Constraint("Vertical", 5),
    Sketcher.Constraint("Horizontal", 7),
    Sketcher.Constraint("Vertical", 9),
    Sketcher.Constraint("Horizontal", 11),
    Sketcher.Constraint("Vertical", 13),
    Sketcher.Constraint("Horizontal", 15),
    Sketcher.Constraint("Vertical", 17),
    Sketcher.Constraint("Horizontal", 19),
    Sketcher.Constraint("Vertical", 21),
    Sketcher.Constraint("Horizontal", 23),
    Sketcher.Constraint("Equal", 0, 2),
    Sketcher.Constraint("Equal", 2, 4),
    Sketcher.Constraint("Equal", 4, 6),
    Sketcher.Constraint("Equal", 6, 8),
    Sketcher.Constraint("Equal", 8, 10),
    Sketcher.Constraint("Equal", 10, 12),
    Sketcher.Constraint("Equal", 12, 14),
    Sketcher.Constraint("Equal", 14, 16),
    Sketcher.Constraint("Equal", 16, 18),
    Sketcher.Constraint("Equal", 18, 20),
    Sketcher.Constraint("Equal", 20, 22),
    Sketcher.Constraint("PointOnObject", 6, 2, -1),
    Sketcher.Constraint("PointOnObject", 14, 1, -1),
    Sketcher.Constraint("Horizontal", 4, 3, 18, 3),
    Sketcher.Constraint("Vertical", 2, 3, 8, 3),
    Sketcher.Constraint("Vertical", 14, 3, 20, 3),
    Sketcher.Constraint("Equal", 7, 15),
    Sketcher.Constraint("Equal", 19, 1),
    Sketcher.Constraint("Equal", 23, 5),
    Sketcher.Constraint("Equal", 1, 9),
    Sketcher.Constraint("Radius", 0, Q("0.2000001 in")),
    Sketcher.Constraint("DistanceX", 3, 2, 3, 1, Q("0.35 in")),
    Sketcher.Constraint("DistanceX", 11, 1, 11, 2, Q("7.784592 mm")),
    Sketcher.Constraint("DistanceX", -1, 1, 0, 3, Q("106.183129 mm")),
])
pad5 = doc.addObject("PartDesign::Pad", "Pad004")
body5.addObject(pad5)
pad5.Profile = sketch5
pad5.Length = Q("0.37 in")

doc.recompute()
